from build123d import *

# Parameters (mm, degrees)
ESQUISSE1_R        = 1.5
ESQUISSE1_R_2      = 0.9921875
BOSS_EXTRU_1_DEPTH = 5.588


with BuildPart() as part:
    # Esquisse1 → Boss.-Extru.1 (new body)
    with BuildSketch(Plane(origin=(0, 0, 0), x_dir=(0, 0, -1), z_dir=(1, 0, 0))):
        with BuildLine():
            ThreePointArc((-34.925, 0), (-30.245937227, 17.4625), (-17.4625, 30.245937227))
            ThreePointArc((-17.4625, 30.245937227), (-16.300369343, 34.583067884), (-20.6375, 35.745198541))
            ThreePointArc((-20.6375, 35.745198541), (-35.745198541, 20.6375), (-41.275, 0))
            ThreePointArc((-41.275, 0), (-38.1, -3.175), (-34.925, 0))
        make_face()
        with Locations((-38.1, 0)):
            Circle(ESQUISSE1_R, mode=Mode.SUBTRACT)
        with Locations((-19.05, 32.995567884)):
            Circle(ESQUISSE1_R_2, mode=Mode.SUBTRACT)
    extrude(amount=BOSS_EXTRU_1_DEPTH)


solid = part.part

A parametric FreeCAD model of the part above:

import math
import FreeCAD as App
import Part
import Sketcher

V = App.Vector
Q = App.Units.Quantity

doc = App.newDocument("Part")
body = doc.addObject("PartDesign::Body", "Body")

sketch1 = doc.addObject("Sketcher::SketchObject", "Sketch")
body.addObject(sketch1)
sketch1.AttachmentSupport = (doc.YZ_Plane, [""])
sketch1.MapMode = "FlatFace"
sketch1.addGeometry(Part.ArcOfCircle(Part.Circle(V(0, 0, 0), V(0, 0, 1), 34.9), math.radians(30), math.radians(90)), False)
sketch1.addGeometry(Part.ArcOfCircle(Part.Circle(V(33, 19.1, 0), V(0, 0, 1), 3.2), math.radians(-150), math.radians(30)), False)
sketch1.addGeometry(Part.ArcOfCircle(Part.Circle(V(0, 0, 0), V(0, 0, 1), 41.3), math.radians(30), math.radians(90)), False)
sketch1.addGeometry(Part.ArcOfCircle(Part.Circle(V(0, 38.1, 0), V(0, 0, 1), 3.2), math.radians(90), math.radians(270)), False)
sketch1.addGeometry(Part.Circle(V(0, 38.1, 0), V(0, 0, 1), 1.5), False)
sketch1.addGeometry(Part.Circle(V(33, 19.1, 0), V(0, 0, 1), 1), False)
sketch1.addConstraint(Sketcher.Constraint("Tangent", 0, 1, 1, 1))
sketch1.addConstraint(Sketcher.Constraint("Tangent", 1, 2, 2, 1))
sketch1.addConstraint(Sketcher.Constraint("Tangent", 2, 2, 3, 1))
sketch1.addConstraint(Sketcher.Constraint("Tangent", 3, 2, 0, 2))
sketch1.addConstraint(Sketcher.Constraint("Coincident", 0, 3, -1, 1))
sketch1.addConstraint(Sketcher.Constraint("Coincident", 2, 3, -1, 1))
sketch1.addConstraint(Sketcher.Constraint("Coincident", 4, 3, 3, 3))
sketch1.addConstraint(Sketcher.Constraint("Coincident", 5, 3, 1, 3))
sketch1.addConstraint(Sketcher.Constraint("PointOnObject", 3, 3, -2))
sketch1.addConstraint(Sketcher.Constraint("Diameter", 5, Q("0.078125 in")))
sketch1.addConstraint(Sketcher.Constraint("Radius", 0, Q("1.375 in")))
sketch1.addConstraint(Sketcher.Constraint("Radius", 1, Q("0.125 in")))
sketch1.addConstraint(Sketcher.Constraint("Diameter", 4, 3.0))
sketch1.addConstraint(Sketcher.Constraint("DistanceY", -1, 1, 1, 3, Q("0.75 in")))
pad1 = doc.addObject("PartDesign::Pad", "Pad")
body.addObject(pad1)
pad1.Profile = sketch1
pad1.Length = Q("0.22 in")

doc.recompute()
